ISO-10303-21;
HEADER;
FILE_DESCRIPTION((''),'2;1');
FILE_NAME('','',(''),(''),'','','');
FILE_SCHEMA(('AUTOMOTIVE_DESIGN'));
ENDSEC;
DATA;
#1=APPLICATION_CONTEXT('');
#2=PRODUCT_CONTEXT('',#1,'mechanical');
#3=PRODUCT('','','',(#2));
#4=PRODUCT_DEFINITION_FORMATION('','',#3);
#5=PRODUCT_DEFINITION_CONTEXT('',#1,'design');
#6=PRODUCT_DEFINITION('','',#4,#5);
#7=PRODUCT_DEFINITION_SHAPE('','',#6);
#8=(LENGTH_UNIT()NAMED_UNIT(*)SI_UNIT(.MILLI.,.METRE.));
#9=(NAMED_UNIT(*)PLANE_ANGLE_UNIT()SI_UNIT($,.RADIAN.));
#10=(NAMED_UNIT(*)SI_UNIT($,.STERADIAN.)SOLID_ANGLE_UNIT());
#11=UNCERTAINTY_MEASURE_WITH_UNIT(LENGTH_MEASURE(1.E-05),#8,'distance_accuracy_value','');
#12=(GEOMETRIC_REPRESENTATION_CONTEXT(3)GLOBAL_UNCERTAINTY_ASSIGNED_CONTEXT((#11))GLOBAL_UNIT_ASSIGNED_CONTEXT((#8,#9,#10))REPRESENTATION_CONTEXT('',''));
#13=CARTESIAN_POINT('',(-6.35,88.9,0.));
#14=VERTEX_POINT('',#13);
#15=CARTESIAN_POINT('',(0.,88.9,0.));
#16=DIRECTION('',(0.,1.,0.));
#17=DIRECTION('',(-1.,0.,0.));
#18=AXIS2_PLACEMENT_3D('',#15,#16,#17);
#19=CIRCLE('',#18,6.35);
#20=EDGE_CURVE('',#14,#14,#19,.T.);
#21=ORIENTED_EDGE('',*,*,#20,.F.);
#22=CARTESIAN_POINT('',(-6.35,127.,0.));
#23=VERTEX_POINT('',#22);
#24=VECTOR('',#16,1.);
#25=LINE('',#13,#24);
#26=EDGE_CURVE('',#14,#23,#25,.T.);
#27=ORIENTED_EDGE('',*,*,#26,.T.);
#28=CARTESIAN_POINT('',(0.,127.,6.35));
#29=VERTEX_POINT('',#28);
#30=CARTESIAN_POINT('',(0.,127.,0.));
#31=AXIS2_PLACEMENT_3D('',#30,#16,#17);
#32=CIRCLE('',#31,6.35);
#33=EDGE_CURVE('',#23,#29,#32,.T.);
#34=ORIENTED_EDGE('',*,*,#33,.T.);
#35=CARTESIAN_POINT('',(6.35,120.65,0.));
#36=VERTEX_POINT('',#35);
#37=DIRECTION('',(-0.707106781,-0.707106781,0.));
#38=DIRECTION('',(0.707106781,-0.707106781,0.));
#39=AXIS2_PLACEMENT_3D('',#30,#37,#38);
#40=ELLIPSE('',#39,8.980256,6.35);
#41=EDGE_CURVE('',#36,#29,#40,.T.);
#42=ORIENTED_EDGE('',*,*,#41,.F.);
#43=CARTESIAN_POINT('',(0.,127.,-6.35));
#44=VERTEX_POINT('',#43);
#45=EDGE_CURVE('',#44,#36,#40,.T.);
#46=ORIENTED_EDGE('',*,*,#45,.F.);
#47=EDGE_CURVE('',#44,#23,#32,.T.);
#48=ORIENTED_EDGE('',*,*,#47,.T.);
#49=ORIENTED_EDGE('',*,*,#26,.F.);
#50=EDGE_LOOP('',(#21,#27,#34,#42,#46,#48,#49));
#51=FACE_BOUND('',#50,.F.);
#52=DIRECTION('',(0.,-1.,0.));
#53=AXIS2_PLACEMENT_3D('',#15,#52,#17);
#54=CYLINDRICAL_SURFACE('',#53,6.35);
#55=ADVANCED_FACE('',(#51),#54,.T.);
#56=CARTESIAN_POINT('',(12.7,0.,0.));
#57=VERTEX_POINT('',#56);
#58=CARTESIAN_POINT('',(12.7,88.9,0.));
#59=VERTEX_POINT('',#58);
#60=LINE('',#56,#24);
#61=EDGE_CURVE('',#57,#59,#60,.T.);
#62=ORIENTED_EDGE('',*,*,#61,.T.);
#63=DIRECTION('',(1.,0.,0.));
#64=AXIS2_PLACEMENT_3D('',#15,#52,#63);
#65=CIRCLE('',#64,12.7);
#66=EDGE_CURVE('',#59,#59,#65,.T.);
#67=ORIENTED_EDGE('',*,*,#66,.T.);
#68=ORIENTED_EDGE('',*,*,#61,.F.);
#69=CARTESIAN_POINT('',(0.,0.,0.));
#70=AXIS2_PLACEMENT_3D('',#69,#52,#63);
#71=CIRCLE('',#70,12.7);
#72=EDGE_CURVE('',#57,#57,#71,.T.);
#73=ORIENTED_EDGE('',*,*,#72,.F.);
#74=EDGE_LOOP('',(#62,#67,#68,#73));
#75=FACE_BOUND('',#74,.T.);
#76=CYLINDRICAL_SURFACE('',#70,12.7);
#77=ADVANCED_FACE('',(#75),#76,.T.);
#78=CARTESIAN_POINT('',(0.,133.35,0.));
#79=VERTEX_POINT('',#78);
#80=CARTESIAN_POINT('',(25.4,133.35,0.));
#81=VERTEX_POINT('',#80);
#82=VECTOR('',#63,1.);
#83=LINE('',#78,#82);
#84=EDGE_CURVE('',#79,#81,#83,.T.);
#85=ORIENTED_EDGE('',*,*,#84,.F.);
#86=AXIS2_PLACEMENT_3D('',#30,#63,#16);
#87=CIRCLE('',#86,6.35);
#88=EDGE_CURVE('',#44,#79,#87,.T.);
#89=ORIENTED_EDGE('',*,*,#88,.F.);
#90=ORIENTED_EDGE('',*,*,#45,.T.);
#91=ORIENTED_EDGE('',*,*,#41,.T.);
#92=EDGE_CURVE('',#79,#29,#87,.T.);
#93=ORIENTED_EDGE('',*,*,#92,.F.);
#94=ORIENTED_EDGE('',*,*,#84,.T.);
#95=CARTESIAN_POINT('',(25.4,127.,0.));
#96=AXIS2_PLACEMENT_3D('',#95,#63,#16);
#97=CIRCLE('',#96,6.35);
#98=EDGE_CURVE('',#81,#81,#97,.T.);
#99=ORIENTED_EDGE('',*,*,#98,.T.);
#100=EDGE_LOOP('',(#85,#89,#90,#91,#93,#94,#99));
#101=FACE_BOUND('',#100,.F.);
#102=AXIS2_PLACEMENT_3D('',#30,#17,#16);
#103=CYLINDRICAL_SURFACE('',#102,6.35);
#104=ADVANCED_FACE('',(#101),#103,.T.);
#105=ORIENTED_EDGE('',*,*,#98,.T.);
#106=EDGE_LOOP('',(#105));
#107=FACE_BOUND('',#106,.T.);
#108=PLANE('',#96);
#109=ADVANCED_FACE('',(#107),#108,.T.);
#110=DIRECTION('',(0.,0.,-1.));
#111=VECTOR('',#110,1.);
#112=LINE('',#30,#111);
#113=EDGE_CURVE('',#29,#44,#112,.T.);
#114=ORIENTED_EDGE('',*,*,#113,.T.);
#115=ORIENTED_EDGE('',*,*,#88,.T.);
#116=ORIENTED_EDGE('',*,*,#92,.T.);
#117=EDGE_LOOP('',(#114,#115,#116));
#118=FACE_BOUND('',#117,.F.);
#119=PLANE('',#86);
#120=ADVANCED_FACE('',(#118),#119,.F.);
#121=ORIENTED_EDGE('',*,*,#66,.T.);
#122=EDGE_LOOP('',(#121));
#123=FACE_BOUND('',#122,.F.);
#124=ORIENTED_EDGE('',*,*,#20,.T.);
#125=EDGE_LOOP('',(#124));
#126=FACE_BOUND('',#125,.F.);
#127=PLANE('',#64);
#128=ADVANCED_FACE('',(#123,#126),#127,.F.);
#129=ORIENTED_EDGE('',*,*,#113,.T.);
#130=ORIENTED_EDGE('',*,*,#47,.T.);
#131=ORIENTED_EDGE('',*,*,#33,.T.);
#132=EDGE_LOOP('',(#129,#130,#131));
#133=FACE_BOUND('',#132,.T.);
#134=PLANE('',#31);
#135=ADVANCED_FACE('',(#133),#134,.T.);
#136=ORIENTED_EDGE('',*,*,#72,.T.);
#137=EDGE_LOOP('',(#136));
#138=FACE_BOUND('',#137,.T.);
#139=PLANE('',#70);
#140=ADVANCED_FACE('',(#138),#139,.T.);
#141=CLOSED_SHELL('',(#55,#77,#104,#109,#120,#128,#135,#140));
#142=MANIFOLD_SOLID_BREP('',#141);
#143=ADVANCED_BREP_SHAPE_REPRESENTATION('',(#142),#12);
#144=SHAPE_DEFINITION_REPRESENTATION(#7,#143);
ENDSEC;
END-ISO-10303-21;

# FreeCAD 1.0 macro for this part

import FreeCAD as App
import Part
import Sketcher

V = App.Vector
Q = App.Units.Quantity

doc = App.newDocument("Part")
params = doc.addObject("Spreadsheet::Sheet", "Params")
for row, (alias, value) in enumerate([
    ("sketch1_diameter", "1 in"),
    ("pad1_length", "3.5 in"),
    ("sketch2_diameter", "0.5 in"),
    ("pad2_length", "1.5 in"),
    ("sketch3_diameter", "0.5 in"),
    ("pad3_length", "1 in"),
], start=1):
    params.set(f"A{row}", alias)
    params.set(f"B{row}", "=" + value)
    params.setAlias(f"B{row}", alias)

body = doc.addObject("PartDesign::Body", "Body")

# Sketch on XZ plane
sketch1 = doc.addObject("Sketcher::SketchObject", "Sketch")
body.addObject(sketch1)
sketch1.AttachmentSupport = (doc.XZ_Plane, [""])
sketch1.MapMode = "FlatFace"
sketch1.addGeometry(Part.Circle(V(0, 0, 0), V(0, 0, 1), 13), False)
sketch1.addConstraint(Sketcher.Constraint("Coincident", 0, 3, -1, 1))
sketch1.addConstraint(Sketcher.Constraint("Diameter", 0, Q("1 in")))
sketch1.setExpression("Constraints[1]", "Params.sketch1_diameter")
pad1 = doc.addObject("PartDesign::Pad", "Pad")
body.addObject(pad1)
pad1.Profile = sketch1
pad1.setExpression("Length", "Params.pad1_length")
pad1.Reversed = True

# Sketch on XZ plane
sketch2 = doc.addObject("Sketcher::SketchObject", "Sketch001")
body.addObject(sketch2)
sketch2.AttachmentSupport = (doc.XZ_Plane, [""])
sketch2.MapMode = "FlatFace"
sketch2.AttachmentOffset = App.Placement(V(0, 0, -3.5 * 25.4), App.Rotation())
sketch2.addGeometry(Part.Circle(V(0, 0, 0), V(0, 0, 1), 6), False)
sketch2.addConstraint(Sketcher.Constraint("Coincident", 0, 3, -1, 1))
sketch2.addConstraint(Sketcher.Constraint("Diameter", 0, Q("0.5 in")))
sketch2.setExpression("Constraints[1]", "Params.sketch2_diameter")
pad2 = doc.addObject("PartDesign::Pad", "Pad001")
body.addObject(pad2)
pad2.Profile = sketch2
pad2.setExpression("Length", "Params.pad2_length")
pad2.Reversed = True

# Sketch on YZ plane
sketch3 = doc.addObject("Sketcher::SketchObject", "Sketch002")
body.addObject(sketch3)
sketch3.AttachmentSupport = (doc.YZ_Plane, [""])
sketch3.MapMode = "FlatFace"
sketch3.addGeometry(Part.Circle(V(127, 0, 0), V(0, 0, 1), 6), False)
sketch3.addConstraint(Sketcher.Constraint("PointOnObject", 0, 3, -1))
sketch3.addConstraint(Sketcher.Constraint("Diameter", 0, Q("0.5 in")))
sketch3.addConstraint(Sketcher.Constraint("DistanceX", -1, 1, 0, 3, Q("5 in")))
sketch3.setExpression("Constraints[1]", "Params.sketch3_diameter")
pad3 = doc.addObject("PartDesign::Pad", "Pad002")
body.addObject(pad3)
pad3.Profile = sketch3
pad3.setExpression("Length", "Params.pad3_length")

doc.recompute()
